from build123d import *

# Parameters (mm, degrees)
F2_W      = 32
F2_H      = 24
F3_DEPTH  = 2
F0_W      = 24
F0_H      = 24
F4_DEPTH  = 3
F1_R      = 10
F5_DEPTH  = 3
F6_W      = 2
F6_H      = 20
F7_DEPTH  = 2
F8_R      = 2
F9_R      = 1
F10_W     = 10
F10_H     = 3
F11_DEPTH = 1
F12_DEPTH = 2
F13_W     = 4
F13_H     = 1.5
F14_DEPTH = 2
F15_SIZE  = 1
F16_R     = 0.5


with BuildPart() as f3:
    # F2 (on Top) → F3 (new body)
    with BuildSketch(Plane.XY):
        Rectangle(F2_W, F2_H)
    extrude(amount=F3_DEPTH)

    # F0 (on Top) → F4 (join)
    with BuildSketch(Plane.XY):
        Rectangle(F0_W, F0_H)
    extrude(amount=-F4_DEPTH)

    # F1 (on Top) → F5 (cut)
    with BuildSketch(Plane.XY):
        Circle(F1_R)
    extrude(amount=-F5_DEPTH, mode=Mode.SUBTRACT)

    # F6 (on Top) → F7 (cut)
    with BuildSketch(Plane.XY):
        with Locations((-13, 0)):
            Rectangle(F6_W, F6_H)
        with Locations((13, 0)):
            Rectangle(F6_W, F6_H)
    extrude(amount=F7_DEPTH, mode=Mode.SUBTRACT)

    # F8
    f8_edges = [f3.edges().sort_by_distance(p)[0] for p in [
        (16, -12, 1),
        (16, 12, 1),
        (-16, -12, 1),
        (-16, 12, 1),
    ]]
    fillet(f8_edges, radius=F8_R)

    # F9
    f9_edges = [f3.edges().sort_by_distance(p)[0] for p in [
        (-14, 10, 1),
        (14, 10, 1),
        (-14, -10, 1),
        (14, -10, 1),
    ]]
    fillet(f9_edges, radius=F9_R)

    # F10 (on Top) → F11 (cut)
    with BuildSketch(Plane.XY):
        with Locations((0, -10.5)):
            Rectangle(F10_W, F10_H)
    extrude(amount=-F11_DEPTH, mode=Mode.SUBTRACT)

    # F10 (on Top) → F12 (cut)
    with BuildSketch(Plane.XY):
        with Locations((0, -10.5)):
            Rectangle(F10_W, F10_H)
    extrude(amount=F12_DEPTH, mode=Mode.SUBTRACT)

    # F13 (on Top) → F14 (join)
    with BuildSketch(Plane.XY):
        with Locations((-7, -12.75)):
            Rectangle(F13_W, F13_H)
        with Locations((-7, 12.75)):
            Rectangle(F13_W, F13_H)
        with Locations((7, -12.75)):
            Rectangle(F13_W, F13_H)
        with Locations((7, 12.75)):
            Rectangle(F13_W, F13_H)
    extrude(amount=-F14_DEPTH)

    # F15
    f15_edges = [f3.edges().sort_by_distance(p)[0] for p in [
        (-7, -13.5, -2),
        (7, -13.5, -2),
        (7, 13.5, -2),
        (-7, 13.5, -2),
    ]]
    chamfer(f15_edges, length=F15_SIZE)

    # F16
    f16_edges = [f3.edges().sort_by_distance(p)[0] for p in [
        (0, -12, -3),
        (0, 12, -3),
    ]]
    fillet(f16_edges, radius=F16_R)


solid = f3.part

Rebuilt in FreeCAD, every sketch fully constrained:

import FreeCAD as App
import Part
import Sketcher
from FreeCAD import Vector


def edges_at(feature, points):
    """Names of the edges that pass closest to the given points."""
    edges = feature.Shape.Edges
    near = lambda p: min(range(len(edges)), key=lambda i: edges[i].distToShape(Part.Vertex(*p))[0])
    return sorted({f"Edge{near(p) + 1}" for p in points})


def add_polygon(sketch, points):
    """Adds a closed chain of lines whose ends are joined by coincident constraints."""
    first, n = sketch.GeometryCount, len(points)
    for a, b in zip(points, points[1:] + points[:1]):
        sketch.addGeometry(Part.LineSegment(App.Vector(*a, 0), App.Vector(*b, 0)), False)
    for i in range(n):
        sketch.addConstraint(Sketcher.Constraint("Coincident", first + i, 2, first + (i + 1) % n, 1))

doc = App.newDocument("Part")
params = doc.addObject("Spreadsheet::Sheet", "Params")
for row, (alias, value) in enumerate([
    ("sketch1_width", "32 mm"),
    ("sketch1_height", "24 mm"),
    ("pad1_length", "2 mm"),
    ("sketch2_width", "24 mm"),
    ("pad2_length", "3 mm"),
    ("sketch3_diameter", "20 mm"),
    ("pocket1_length", "3 mm"),
    ("sketch4_width", "2 mm"),
    ("sketch4_height", "20 mm"),
    ("pocket2_length", "2 mm"),
    ("fillet_radius", "2 mm"),
    ("fillet2_radius", "1 mm"),
    ("sketch5_width", "10 mm"),
    ("sketch5_height", "3 mm"),
    ("pocket3_length", "1 mm"),
    ("sketch6_width", "10 mm"),
    ("sketch6_height", "3 mm"),
    ("pocket4_length", "2 mm"),
    ("sketch7_width", "4 mm"),
    ("sketch7_height", "1.5 mm"),
    ("pad3_length", "2 mm"),
    ("chamfer_size", "1 mm"),
    ("fillet3_radius", "0.5 mm"),
], start=1):
    params.set(f"A{row}", alias)
    params.set(f"B{row}", "=" + value)
    params.setAlias(f"B{row}", alias)

body = doc.addObject("PartDesign::Body", "Body")

# Sketch on XY plane
sketch1 = body.newObject("Sketcher::SketchObject", "Sketch")
sketch1.AttachmentSupport = (doc.getObject("XY_Plane"), [""])
sketch1.MapMode = "FlatFace"
add_polygon(sketch1, [(-16, 12), (-16, -12), (16, -12), (16, 12)])  # lines 0-3
sketch1.addConstraint(Sketcher.Constraint("Vertical", 0))
sketch1.addConstraint(Sketcher.Constraint("Horizontal", 1))
sketch1.addConstraint(Sketcher.Constraint("Vertical", 2))
sketch1.addConstraint(Sketcher.Constraint("Horizontal", 3))
sketch1.addConstraint(Sketcher.Constraint("Symmetric", 0, 2, 2, 2, -1, 1))
sketch1.addConstraint(Sketcher.Constraint("DistanceX", 1, 1, 1, 2, 32.0))
sketch1.addConstraint(Sketcher.Constraint("DistanceY", 0, 2, 0, 1, 24.0))
sketch1.setExpression("Constraints[9]", "Params.sketch1_width")
sketch1.setExpression("Constraints[10]", "Params.sketch1_height")
pad1 = body.newObject("PartDesign::Pad", "Pad")
pad1.Profile = sketch1
pad1.setExpression("Length", "Params.pad1_length")

# Sketch on XY plane
sketch2 = body.newObject("Sketcher::SketchObject", "Sketch001")
sketch2.AttachmentSupport = (doc.getObject("XY_Plane"), [""])
sketch2.MapMode = "FlatFace"
add_polygon(sketch2, [(-12, 12), (-12, -12), (12, -12), (12, 12)])  # lines 0-3
sketch2.addConstraint(Sketcher.Constraint("Vertical", 0))
sketch2.addConstraint(Sketcher.Constraint("Horizontal", 1))
sketch2.addConstraint(Sketcher.Constraint("Vertical", 2))
sketch2.addConstraint(Sketcher.Constraint("Horizontal", 3))
sketch2.addConstraint(Sketcher.Constraint("Symmetric", 0, 2, 2, 2, -1, 1))
sketch2.addConstraint(Sketcher.Constraint("Equal", 3, 0))
sketch2.addConstraint(Sketcher.Constraint("DistanceX", 1, 1, 1, 2, 24.0))
sketch2.setExpression("Constraints[10]", "Params.sketch2_width")
pad2 = body.newObject("PartDesign::Pad", "Pad001")
pad2.Profile = sketch2
pad2.setExpression("Length", "Params.pad2_length")
pad2.Reversed = True

# Sketch on XY plane
sketch3 = body.newObject("Sketcher::SketchObject", "Sketch002")
sketch3.AttachmentSupport = (doc.getObject("XY_Plane"), [""])
sketch3.MapMode = "FlatFace"
sketch3.addGeometry(Part.Circle(Vector(0, 0, 0), Vector(0, 0, 1), 10), False)
sketch3.addConstraint(Sketcher.Constraint("Coincident", 0, 3, -1, 1))
sketch3.addConstraint(Sketcher.Constraint("Diameter", 0, 20.0))
sketch3.setExpression("Constraints[1]", "Params.sketch3_diameter")
pocket1 = body.newObject("PartDesign::Pocket", "Pocket")
pocket1.Profile = sketch3
pocket1.setExpression("Length", "Params.pocket1_length")

# Sketch on XY plane
sketch4 = body.newObject("Sketcher::SketchObject", "Sketch003")
sketch4.AttachmentSupport = (doc.getObject("XY_Plane"), [""])
sketch4.MapMode = "FlatFace"
add_polygon(sketch4, [(-14, 10), (-14, -10), (-12, -10), (-12, 10)])  # lines 0-3
add_polygon(sketch4, [(12, 10), (12, -10), (14, -10), (14, 10)])  # lines 4-7
sketch4.addConstraint(Sketcher.Constraint("Vertical", 0))
sketch4.addConstraint(Sketcher.Constraint("Horizontal", 1))
sketch4.addConstraint(Sketcher.Constraint("Vertical", 2))
sketch4.addConstraint(Sketcher.Constraint("Horizontal", 3))
sketch4.addConstraint(Sketcher.Constraint("Vertical", 4))
sketch4.addConstraint(Sketcher.Constraint("Horizontal", 5))
sketch4.addConstraint(Sketcher.Constraint("Vertical", 6))
sketch4.addConstraint(Sketcher.Constraint("Horizontal", 7))
sketch4.addConstraint(Sketcher.Constraint("Symmetric", 2, 2, 4, 2, -1, 1))
sketch4.addConstraint(Sketcher.Constraint("Symmetric", 0, 2, 6, 2, -1, 1))
sketch4.addConstraint(Sketcher.Constraint("Horizontal", 1, 2, 4, 2))
sketch4.addConstraint(Sketcher.Constraint("DistanceX", 1, 1, 1, 2, 2.0))
sketch4.addConstraint(Sketcher.Constraint("DistanceY", 0, 2, 0, 1, 20.0))
sketch4.addConstraint(Sketcher.Constraint("DistanceX", 0, 2, -1, 1, 14.0))
sketch4.setExpression("Constraints[19]", "Params.sketch4_width")
sketch4.setExpression("Constraints[20]", "Params.sketch4_height")
pocket2 = body.newObject("PartDesign::Pocket", "Pocket001")
pocket2.Profile = sketch4
pocket2.setExpression("Length", "Params.pocket2_length")
pocket2.Reversed = True
doc.recompute()

fillet = body.newObject("PartDesign::Fillet", "Fillet")
fillet.Base = (pocket2, edges_at(pocket2, [
    (16, -12, 1),
    (16, 12, 1),
    (-16, -12, 1),
    (-16, 12, 1),
]))
fillet.setExpression("Radius", "Params.fillet_radius")
doc.recompute()

fillet2 = body.newObject("PartDesign::Fillet", "Fillet001")
fillet2.Base = (fillet, edges_at(fillet, [
    (-14, 10, 1),
    (14, 10, 1),
    (-14, -10, 1),
    (14, -10, 1),
]))
fillet2.setExpression("Radius", "Params.fillet2_radius")

# Sketch on XY plane
sketch5 = body.newObject("Sketcher::SketchObject", "Sketch004")
sketch5.AttachmentSupport = (doc.getObject("XY_Plane"), [""])
sketch5.MapMode = "FlatFace"
add_polygon(sketch5, [(-5, -9), (-5, -12), (5, -12), (5, -9)])  # lines 0-3
sketch5.addConstraint(Sketcher.Constraint("Vertical", 0))
sketch5.addConstraint(Sketcher.Constraint("Horizontal", 1))
sketch5.addConstraint(Sketcher.Constraint("Vertical", 2))
sketch5.addConstraint(Sketcher.Constraint("Horizontal", 3))
sketch5.addConstraint(Sketcher.Constraint("DistanceX", 1, 1, 1, 2, 10.0))
sketch5.addConstraint(Sketcher.Constraint("DistanceY", 0, 2, 0, 1, 3.0))
sketch5.addConstraint(Sketcher.Constraint("DistanceX", 0, 2, -1, 1, 5.0))
sketch5.addConstraint(Sketcher.Constraint("DistanceY", 0, 2, -1, 1, 12.0))
sketch5.setExpression("Constraints[8]", "Params.sketch5_width")
sketch5.setExpression("Constraints[9]", "Params.sketch5_height")
pocket3 = body.newObject("PartDesign::Pocket", "Pocket002")
pocket3.Profile = sketch5
pocket3.setExpression("Length", "Params.pocket3_length")

# Sketch on XY plane
sketch6 = body.newObject("Sketcher::SketchObject", "Sketch005")
sketch6.AttachmentSupport = (doc.getObject("XY_Plane"), [""])
sketch6.MapMode = "FlatFace"
add_polygon(sketch6, [(-5, -9), (-5, -12), (5, -12), (5, -9)])  # lines 0-3
sketch6.addConstraint(Sketcher.Constraint("Vertical", 0))
sketch6.addConstraint(Sketcher.Constraint("Horizontal", 1))
sketch6.addConstraint(Sketcher.Constraint("Vertical", 2))
sketch6.addConstraint(Sketcher.Constraint("Horizontal", 3))
sketch6.addConstraint(Sketcher.Constraint("DistanceX", 1, 1, 1, 2, 10.0))
sketch6.addConstraint(Sketcher.Constraint("DistanceY", 0, 2, 0, 1, 3.0))
sketch6.addConstraint(Sketcher.Constraint("DistanceX", 0, 2, -1, 1, 5.0))
sketch6.addConstraint(Sketcher.Constraint("DistanceY", 0, 2, -1, 1, 12.0))
sketch6.setExpression("Constraints[8]", "Params.sketch6_width")
sketch6.setExpression("Constraints[9]", "Params.sketch6_height")
pocket4 = body.newObject("PartDesign::Pocket", "Pocket003")
pocket4.Profile = sketch6
pocket4.setExpression("Length", "Params.pocket4_length")
pocket4.Reversed = True

# Sketch on XY plane
sketch7 = body.newObject("Sketcher::SketchObject", "Sketch006")
sketch7.AttachmentSupport = (doc.getObject("XY_Plane"), [""])
sketch7.MapMode = "FlatFace"
add_polygon(sketch7, [(-9, -12), (-9, -13.5), (-5, -13.5), (-5, -12)])  # lines 0-3
add_polygon(sketch7, [(-9, 13.5), (-9, 12), (-5, 12), (-5, 13.5)])  # lines 4-7
add_polygon(sketch7, [(5, -12), (5, -13.5), (9, -13.5), (9, -12)])  # lines 8-11
add_polygon(sketch7, [(5, 13.5), (5, 12), (9, 12), (9, 13.5)])  # lines 12-15
sketch7.addConstraint(Sketcher.Constraint("Vertical", 0))
sketch7.addConstraint(Sketcher.Constraint("Horizontal", 1))
sketch7.addConstraint(Sketcher.Constraint("Vertical", 2))
sketch7.addConstraint(Sketcher.Constraint("Horizontal", 3))
sketch7.addConstraint(Sketcher.Constraint("Vertical", 4))
sketch7.addConstraint(Sketcher.Constraint("Horizontal", 5))
sketch7.addConstraint(Sketcher.Constraint("Vertical", 6))
sketch7.addConstraint(Sketcher.Constraint("Horizontal", 7))
sketch7.addConstraint(Sketcher.Constraint("Vertical", 8))
sketch7.addConstraint(Sketcher.Constraint("Horizontal", 9))
sketch7.addConstraint(Sketcher.Constraint("Vertical", 10))
sketch7.addConstraint(Sketcher.Constraint("Horizontal", 11))
sketch7.addConstraint(Sketcher.Constraint("Vertical", 12))
sketch7.addConstraint(Sketcher.Constraint("Horizontal", 13))
sketch7.addConstraint(Sketcher.Constraint("Vertical", 14))
sketch7.addConstraint(Sketcher.Constraint("Horizontal", 15))
sketch7.addConstraint(Sketcher.Constraint("Symmetric", 6, 2, 8, 2, -1, 1))
sketch7.addConstraint(Sketcher.Constraint("Symmetric", 4, 2, 10, 2, -1, 1))
sketch7.addConstraint(Sketcher.Constraint("Symmetric", 2, 2, 12, 2, -1, 1))
sketch7.addConstraint(Sketcher.Constraint("Symmetric", 0, 2, 14, 2, -1, 1))
sketch7.addConstraint(Sketcher.Constraint("Symmetric", 1, 2, 8, 2, -2))
sketch7.addConstraint(Sketcher.Constraint("Symmetric", 3, 2, 10, 2, -2))
sketch7.addConstraint(Sketcher.Constraint("DistanceX", 1, 1, 1, 2, 4.0))
sketch7.addConstraint(Sketcher.Constraint("DistanceY", 0, 2, 0, 1, 1.5))
sketch7.addConstraint(Sketcher.Constraint("DistanceX", 0, 2, -1, 1, 9.0))
sketch7.addConstraint(Sketcher.Constraint("DistanceY", 2, 2, -1, 1, 12.0))
sketch7.setExpression("Constraints[38]", "Params.sketch7_width")
sketch7.setExpression("Constraints[39]", "Params.sketch7_height")
pad3 = body.newObject("PartDesign::Pad", "Pad002")
pad3.Profile = sketch7
pad3.setExpression("Length", "Params.pad3_length")
pad3.Reversed = True
doc.recompute()

chamfer = body.newObject("PartDesign::Chamfer", "Chamfer")
chamfer.Base = (pad3, edges_at(pad3, [
    (-7, -13.5, -2),
    (7, -13.5, -2),
    (7, 13.5, -2),
    (-7, 13.5, -2),
]))
chamfer.setExpression("Size", "Params.chamfer_size")
doc.recompute()

fillet3 = body.newObject("PartDesign::Fillet", "Fillet002")
fillet3.Base = (chamfer, edges_at(chamfer, [(0, -12, -3), (0, 12, -3)]))
fillet3.setExpression("Radius", "Params.fillet3_radius")

doc.recompute()
